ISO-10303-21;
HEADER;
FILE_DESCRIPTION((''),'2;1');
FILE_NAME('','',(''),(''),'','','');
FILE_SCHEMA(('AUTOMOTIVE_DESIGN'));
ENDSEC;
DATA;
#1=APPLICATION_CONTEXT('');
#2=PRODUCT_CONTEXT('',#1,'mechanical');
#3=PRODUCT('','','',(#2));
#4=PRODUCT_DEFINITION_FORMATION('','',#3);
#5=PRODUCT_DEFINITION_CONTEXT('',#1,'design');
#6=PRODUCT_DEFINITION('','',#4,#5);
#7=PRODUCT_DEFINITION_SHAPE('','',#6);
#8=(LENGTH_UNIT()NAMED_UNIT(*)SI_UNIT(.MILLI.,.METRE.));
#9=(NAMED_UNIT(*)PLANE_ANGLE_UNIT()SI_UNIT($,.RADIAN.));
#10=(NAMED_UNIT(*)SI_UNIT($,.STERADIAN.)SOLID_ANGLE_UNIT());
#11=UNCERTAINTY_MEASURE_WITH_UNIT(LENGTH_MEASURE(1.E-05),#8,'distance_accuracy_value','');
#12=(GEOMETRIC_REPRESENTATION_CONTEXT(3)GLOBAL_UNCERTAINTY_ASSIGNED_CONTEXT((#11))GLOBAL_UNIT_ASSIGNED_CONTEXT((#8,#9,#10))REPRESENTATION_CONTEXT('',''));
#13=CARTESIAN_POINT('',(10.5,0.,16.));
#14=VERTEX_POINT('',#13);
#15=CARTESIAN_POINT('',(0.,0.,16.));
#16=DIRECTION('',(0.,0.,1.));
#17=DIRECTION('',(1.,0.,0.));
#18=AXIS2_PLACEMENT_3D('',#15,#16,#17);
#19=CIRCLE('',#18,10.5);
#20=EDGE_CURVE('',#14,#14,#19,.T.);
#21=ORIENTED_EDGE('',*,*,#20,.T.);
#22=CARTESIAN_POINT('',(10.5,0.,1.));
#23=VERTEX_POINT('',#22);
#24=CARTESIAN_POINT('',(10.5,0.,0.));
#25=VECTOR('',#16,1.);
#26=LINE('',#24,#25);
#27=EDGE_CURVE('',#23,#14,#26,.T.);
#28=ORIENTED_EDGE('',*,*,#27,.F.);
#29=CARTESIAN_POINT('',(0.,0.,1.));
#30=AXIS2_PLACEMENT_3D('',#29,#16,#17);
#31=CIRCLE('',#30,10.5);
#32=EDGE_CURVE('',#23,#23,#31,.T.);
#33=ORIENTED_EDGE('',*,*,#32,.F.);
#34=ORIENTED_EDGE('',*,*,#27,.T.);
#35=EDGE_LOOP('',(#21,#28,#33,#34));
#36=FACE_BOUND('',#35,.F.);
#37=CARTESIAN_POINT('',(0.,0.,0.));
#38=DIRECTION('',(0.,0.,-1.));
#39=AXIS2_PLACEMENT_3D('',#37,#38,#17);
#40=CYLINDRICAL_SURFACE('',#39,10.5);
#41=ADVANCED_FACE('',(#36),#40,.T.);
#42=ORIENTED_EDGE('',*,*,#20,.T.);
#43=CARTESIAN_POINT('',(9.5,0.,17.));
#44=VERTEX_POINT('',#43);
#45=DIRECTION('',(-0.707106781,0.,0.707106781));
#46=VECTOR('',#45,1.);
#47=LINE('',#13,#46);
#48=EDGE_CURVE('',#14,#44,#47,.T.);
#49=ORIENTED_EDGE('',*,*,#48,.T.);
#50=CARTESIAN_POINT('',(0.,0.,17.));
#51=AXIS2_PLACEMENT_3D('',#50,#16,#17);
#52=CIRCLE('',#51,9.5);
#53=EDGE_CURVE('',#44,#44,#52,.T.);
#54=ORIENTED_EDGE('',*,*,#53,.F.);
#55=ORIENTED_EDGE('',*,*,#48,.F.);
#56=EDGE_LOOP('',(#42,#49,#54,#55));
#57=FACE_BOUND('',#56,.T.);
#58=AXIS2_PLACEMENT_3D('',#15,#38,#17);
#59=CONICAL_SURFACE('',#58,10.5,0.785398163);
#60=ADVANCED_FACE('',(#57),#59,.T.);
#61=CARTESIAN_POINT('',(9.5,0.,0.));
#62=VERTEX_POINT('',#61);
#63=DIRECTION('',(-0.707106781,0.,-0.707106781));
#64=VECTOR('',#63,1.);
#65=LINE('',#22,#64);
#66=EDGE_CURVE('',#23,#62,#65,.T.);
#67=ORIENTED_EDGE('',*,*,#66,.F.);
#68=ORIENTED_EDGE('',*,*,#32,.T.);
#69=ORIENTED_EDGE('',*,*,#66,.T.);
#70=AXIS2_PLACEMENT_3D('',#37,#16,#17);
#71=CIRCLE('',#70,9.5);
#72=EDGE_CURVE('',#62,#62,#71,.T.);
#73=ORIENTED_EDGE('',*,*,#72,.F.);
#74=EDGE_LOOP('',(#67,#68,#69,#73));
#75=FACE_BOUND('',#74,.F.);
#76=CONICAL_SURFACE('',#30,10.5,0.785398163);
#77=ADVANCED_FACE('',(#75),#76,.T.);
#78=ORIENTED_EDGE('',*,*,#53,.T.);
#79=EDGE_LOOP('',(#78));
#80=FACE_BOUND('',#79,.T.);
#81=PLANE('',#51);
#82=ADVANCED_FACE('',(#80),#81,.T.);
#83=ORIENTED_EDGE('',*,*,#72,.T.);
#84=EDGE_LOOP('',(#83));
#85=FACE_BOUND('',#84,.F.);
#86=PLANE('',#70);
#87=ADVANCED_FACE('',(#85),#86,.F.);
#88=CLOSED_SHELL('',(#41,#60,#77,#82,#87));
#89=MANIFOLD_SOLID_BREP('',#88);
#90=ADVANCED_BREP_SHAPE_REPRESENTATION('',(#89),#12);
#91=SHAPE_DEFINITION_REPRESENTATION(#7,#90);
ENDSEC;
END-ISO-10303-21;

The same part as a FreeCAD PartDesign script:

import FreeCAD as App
import Part
import Sketcher


def edges_at(feature, points):
    """Names of the edges that pass closest to the given points."""
    edges = feature.Shape.Edges
    near = lambda p: min(range(len(edges)), key=lambda i: edges[i].distToShape(Part.Vertex(*p))[0])
    return sorted({f"Edge{near(p) + 1}" for p in points})

doc = App.newDocument("Part")
params = doc.addObject("Spreadsheet::Sheet", "Params")
for row, (alias, value) in enumerate([
    ("sketch1_diameter", "21 mm"),
    ("pad1_length", "17 mm"),
    ("chamfer_size", "1 mm"),
    ("chamfer2_size", "1 mm"),
], start=1):
    params.set(f"A{row}", alias)
    params.set(f"B{row}", "=" + value)
    params.setAlias(f"B{row}", alias)

body = doc.addObject("PartDesign::Body", "Body")

sketch1 = doc.addObject("Sketcher::SketchObject", "Sketch")
body.addObject(sketch1)
sketch1.AttachmentSupport = (doc.XY_Plane, [""])
sketch1.MapMode = "FlatFace"
sketch1.addGeometry(Part.Circle(App.Vector(0, 0, 0), App.Vector(0, 0, 1), 10), False)
sketch1.addConstraint([
    Sketcher.Constraint("Coincident", 0, 3, -1, 1),
    Sketcher.Constraint("Diameter", 0, 21.0),
])
sketch1.setExpression("Constraints[1]", "Params.sketch1_diameter")
pad1 = doc.addObject("PartDesign::Pad", "Pad")
body.addObject(pad1)
pad1.Profile = sketch1
pad1.setExpression("Length", "Params.pad1_length")
doc.recompute()

chamfer = doc.addObject("PartDesign::Chamfer", "Chamfer")
body.addObject(chamfer)
chamfer.Base = (pad1, edges_at(pad1, [(-10.5, 0, 17)]))
chamfer.setExpression("Size", "Params.chamfer_size")
doc.recompute()

chamfer2 = doc.addObject("PartDesign::Chamfer", "Chamfer001")
body.addObject(chamfer2)
chamfer2.Base = (chamfer, edges_at(chamfer, [(-10.5, 0, 0)]))
chamfer2.setExpression("Size", "Params.chamfer2_size")

doc.recompute()
